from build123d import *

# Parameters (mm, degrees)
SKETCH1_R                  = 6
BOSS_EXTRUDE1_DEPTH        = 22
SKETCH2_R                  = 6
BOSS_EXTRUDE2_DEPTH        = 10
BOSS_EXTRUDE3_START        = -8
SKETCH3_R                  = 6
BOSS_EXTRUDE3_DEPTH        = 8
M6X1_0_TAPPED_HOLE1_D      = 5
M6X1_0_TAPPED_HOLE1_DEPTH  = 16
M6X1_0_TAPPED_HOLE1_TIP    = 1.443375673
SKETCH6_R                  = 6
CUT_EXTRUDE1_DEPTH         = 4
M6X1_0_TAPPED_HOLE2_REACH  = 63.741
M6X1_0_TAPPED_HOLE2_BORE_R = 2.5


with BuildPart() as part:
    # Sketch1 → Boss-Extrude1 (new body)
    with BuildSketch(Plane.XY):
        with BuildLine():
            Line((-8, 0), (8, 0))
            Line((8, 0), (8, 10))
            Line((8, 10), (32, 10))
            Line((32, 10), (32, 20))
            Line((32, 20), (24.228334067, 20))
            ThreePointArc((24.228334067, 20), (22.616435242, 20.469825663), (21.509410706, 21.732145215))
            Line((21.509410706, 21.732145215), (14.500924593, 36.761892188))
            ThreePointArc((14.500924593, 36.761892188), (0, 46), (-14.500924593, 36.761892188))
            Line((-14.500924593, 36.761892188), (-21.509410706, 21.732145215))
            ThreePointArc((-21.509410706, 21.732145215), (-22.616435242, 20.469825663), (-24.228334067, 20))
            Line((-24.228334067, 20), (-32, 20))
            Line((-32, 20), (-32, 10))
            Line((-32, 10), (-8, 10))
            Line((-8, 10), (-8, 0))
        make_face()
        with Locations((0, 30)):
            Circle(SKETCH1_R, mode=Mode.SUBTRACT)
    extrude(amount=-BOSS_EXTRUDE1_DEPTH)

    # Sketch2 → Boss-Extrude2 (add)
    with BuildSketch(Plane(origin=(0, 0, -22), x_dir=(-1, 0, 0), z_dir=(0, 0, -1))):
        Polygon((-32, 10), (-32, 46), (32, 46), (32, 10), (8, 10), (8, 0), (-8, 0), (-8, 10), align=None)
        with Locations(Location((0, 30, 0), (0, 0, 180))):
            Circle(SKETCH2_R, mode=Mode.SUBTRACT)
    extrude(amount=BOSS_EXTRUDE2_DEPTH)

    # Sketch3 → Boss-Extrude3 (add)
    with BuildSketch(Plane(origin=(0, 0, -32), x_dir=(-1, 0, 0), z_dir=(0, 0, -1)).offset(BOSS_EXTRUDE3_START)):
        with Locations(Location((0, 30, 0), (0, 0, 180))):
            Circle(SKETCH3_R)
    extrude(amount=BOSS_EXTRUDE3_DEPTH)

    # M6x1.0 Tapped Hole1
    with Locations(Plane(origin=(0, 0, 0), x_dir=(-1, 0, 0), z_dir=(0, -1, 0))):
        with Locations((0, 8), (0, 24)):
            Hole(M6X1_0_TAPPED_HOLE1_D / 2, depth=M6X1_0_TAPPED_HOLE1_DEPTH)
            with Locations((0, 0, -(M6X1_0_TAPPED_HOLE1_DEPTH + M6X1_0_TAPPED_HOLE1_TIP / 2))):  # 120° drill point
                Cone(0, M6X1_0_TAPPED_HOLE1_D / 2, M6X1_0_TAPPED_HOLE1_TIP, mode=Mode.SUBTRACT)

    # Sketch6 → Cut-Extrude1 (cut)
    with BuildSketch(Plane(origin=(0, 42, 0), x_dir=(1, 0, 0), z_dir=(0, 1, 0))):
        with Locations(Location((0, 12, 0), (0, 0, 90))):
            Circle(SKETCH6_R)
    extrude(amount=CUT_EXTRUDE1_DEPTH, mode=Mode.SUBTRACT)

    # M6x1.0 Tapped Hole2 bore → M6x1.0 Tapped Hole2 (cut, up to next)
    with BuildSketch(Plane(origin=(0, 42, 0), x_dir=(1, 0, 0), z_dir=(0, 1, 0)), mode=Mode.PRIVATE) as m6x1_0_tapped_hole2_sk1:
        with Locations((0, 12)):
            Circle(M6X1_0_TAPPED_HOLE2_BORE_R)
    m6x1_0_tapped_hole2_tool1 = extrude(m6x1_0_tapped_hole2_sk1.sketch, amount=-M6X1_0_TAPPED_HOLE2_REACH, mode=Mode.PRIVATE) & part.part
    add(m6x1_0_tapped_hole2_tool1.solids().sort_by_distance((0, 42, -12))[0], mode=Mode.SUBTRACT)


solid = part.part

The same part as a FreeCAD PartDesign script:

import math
import FreeCAD as App
import Part
import Sketcher
from FreeCAD import Vector
Q = App.Units.Quantity

doc = App.newDocument("Part")
params = doc.addObject("Spreadsheet::Sheet", "Params")
for row, (alias, value) in enumerate([
    ("sketch1_diameter", "12 mm"),
    ("sketch1_radius", "3 mm"),
    ("sketch1_radius2", "16 mm"),
    ("sketch1_width", "16 mm"),
    ("sketch1_width2", "24 mm"),
    ("pad1_length", "22 mm"),
    ("sketch2_diameter", "12 mm"),
    ("sketch2_width", "24 mm"),
    ("sketch2_width2", "16 mm"),
    ("sketch2_height", "36 mm"),
    ("sketch2_height2", "10 mm"),
    ("pad2_length", "10 mm"),
    ("sketch3_diameter", "12 mm"),
    ("pad3_length", "8 mm"),
    ("sketch4_diameter", "5 mm"),
    ("hole_diameter", "5 mm"),
    ("hole_depth", "16 mm"),
    ("sketch5_diameter", "12 mm"),
    ("pocket1_length", "4 mm"),
    ("sketch6_diameter", "5 mm"),
], start=1):
    params.set(f"A{row}", alias)
    params.set(f"B{row}", "=" + value)
    params.setAlias(f"B{row}", alias)

body = doc.addObject("PartDesign::Body", "Body")

sketch1 = body.newObject("Sketcher::SketchObject", "Sketch")
sketch1.AttachmentSupport = (doc.getObject("XY_Plane"), [""])
sketch1.MapMode = "FlatFace"
sketch1.addGeometry([
    Part.LineSegment(Vector(-8, 0, 0), Vector(8, 0, 0)),
    Part.LineSegment(Vector(8, 0, 0), Vector(8, 10, 0)),
    Part.LineSegment(Vector(8, 10, 0), Vector(32, 10, 0)),
    Part.LineSegment(Vector(32, 10, 0), Vector(32, 20, 0)),
    Part.LineSegment(Vector(32, 20, 0), Vector(24.2, 20, 0)),
    Part.ArcOfCircle(Part.Circle(Vector(24.2, 23, 0), Vector(0, 0, 1), 3), math.radians(-155), math.radians(-90)),
    Part.LineSegment(Vector(21.5, 21.7, 0), Vector(14.5, 36.8, 0)),
    Part.ArcOfCircle(Part.Circle(Vector(0, 30, 0), Vector(0, 0, 1), 16), math.radians(25), math.radians(155)),
    Part.LineSegment(Vector(-14.5, 36.8, 0), Vector(-21.5, 21.7, 0)),
    Part.ArcOfCircle(Part.Circle(Vector(-24.2, 23, 0), Vector(0, 0, 1), 3), math.radians(-90), math.radians(-25)),
    Part.LineSegment(Vector(-24.2, 20, 0), Vector(-32, 20, 0)),
    Part.LineSegment(Vector(-32, 20, 0), Vector(-32, 10, 0)),
    Part.LineSegment(Vector(-32, 10, 0), Vector(-8, 10, 0)),
    Part.LineSegment(Vector(-8, 10, 0), Vector(-8, 0, 0)),
    Part.Circle(Vector(0, 30, 0), Vector(0, 0, 1), 6),
], False)
sketch1.addConstraint([
    Sketcher.Constraint("Coincident", 0, 2, 1, 1),
    Sketcher.Constraint("Coincident", 1, 2, 2, 1),
    Sketcher.Constraint("Coincident", 2, 2, 3, 1),
    Sketcher.Constraint("Coincident", 3, 2, 4, 1),
    Sketcher.Constraint("Tangent", 4, 2, 5, 2),
    Sketcher.Constraint("Tangent", 5, 1, 6, 1),
    Sketcher.Constraint("Tangent", 6, 2, 7, 1),
    Sketcher.Constraint("Tangent", 7, 2, 8, 1),
    Sketcher.Constraint("Tangent", 8, 2, 9, 2),
    Sketcher.Constraint("Tangent", 9, 1, 10, 1),
    Sketcher.Constraint("Coincident", 10, 2, 11, 1),
    Sketcher.Constraint("Coincident", 11, 2, 12, 1),
    Sketcher.Constraint("Coincident", 12, 2, 13, 1),
    Sketcher.Constraint("Coincident", 13, 2, 0, 1),
    Sketcher.Constraint("Horizontal", 0),
    Sketcher.Constraint("Vertical", 1),
    Sketcher.Constraint("Horizontal", 2),
    Sketcher.Constraint("Vertical", 3),
    Sketcher.Constraint("Horizontal", 4),
    Sketcher.Constraint("Horizontal", 10),
    Sketcher.Constraint("Vertical", 11),
    Sketcher.Constraint("Horizontal", 12),
    Sketcher.Constraint("Vertical", 13),
    Sketcher.Constraint("Coincident", 14, 3, 7, 3),
    Sketcher.Constraint("Equal", 5, 9),
    Sketcher.Constraint("Symmetric", 0, 2, 13, 2, -1, 1),
    Sketcher.Constraint("Symmetric", 5, 3, 9, 3, -2),
    Sketcher.Constraint("Symmetric", 2, 2, 11, 2, -2),
    Sketcher.Constraint("PointOnObject", 7, 3, -2),
    Sketcher.Constraint("Equal", 1, 3),
    Sketcher.Constraint("Diameter", 14, 12.0),
    Sketcher.Constraint("Radius", 5, 3.0),
    Sketcher.Constraint("Radius", 7, 16.0),
    Sketcher.Constraint("DistanceX", 0, 1, 0, 2, 16.0),
    Sketcher.Constraint("DistanceX", 2, 1, 2, 2, 24.0),
    Sketcher.Constraint("DistanceY", 1, 1, 1, 2, 10.0),
    Sketcher.Constraint("Angle", 6, Q("115 deg")),
    Sketcher.Constraint("DistanceY", -1, 1, 7, 3, 30.0),
])
sketch1.setExpression("Constraints[30]", "Params.sketch1_diameter")
sketch1.setExpression("Constraints[31]", "Params.sketch1_radius")
sketch1.setExpression("Constraints[32]", "Params.sketch1_radius2")
sketch1.setExpression("Constraints[33]", "Params.sketch1_width")
sketch1.setExpression("Constraints[34]", "Params.sketch1_width2")
pad1 = body.newObject("PartDesign::Pad", "Pad")
pad1.Profile = sketch1
pad1.setExpression("Length", "Params.pad1_length")
pad1.Reversed = True

sketch2 = body.newObject("Sketcher::SketchObject", "Sketch001")
sketch2.AttachmentSupport = (doc.getObject("XY_Plane"), [""])
sketch2.MapMode = "FlatFace"
sketch2.AttachmentOffset = App.Placement(Vector(0, 0, -22), App.Rotation())
sketch2.addGeometry([
    Part.LineSegment(Vector(32, 46, 0), Vector(32, 10, 0)),
    Part.LineSegment(Vector(32, 10, 0), Vector(8, 10, 0)),
    Part.LineSegment(Vector(8, 10, 0), Vector(8, 0, 0)),
    Part.LineSegment(Vector(8, 0, 0), Vector(-8, 0, 0)),
    Part.LineSegment(Vector(-8, 0, 0), Vector(-8, 10, 0)),
    Part.LineSegment(Vector(-8, 10, 0), Vector(-32, 10, 0)),
    Part.LineSegment(Vector(-32, 10, 0), Vector(-32, 46, 0)),
    Part.LineSegment(Vector(-32, 46, 0), Vector(32, 46, 0)),
    Part.Circle(Vector(0, 30, 0), Vector(0, 0, 1), 6),
], False)
sketch2.addConstraint([
    Sketcher.Constraint("Coincident", 0, 2, 1, 1),
    Sketcher.Constraint("Coincident", 1, 2, 2, 1),
    Sketcher.Constraint("Coincident", 2, 2, 3, 1),
    Sketcher.Constraint("Coincident", 3, 2, 4, 1),
    Sketcher.Constraint("Coincident", 4, 2, 5, 1),
    Sketcher.Constraint("Coincident", 5, 2, 6, 1),
    Sketcher.Constraint("Coincident", 6, 2, 7, 1),
    Sketcher.Constraint("Coincident", 7, 2, 0, 1),
    Sketcher.Constraint("Vertical", 0),
    Sketcher.Constraint("Horizontal", 1),
    Sketcher.Constraint("Vertical", 2),
    Sketcher.Constraint("Horizontal", 3),
    Sketcher.Constraint("Vertical", 4),
    Sketcher.Constraint("Horizontal", 5),
    Sketcher.Constraint("Vertical", 6),
    Sketcher.Constraint("Horizontal", 7),
    Sketcher.Constraint("Symmetric", 2, 2, 3, 2, -1, 1),
    Sketcher.Constraint("Symmetric", 0, 2, 5, 2, -2),
    Sketcher.Constraint("PointOnObject", 8, 3, -2),
    Sketcher.Constraint("Diameter", 8, 12.0),
    Sketcher.Constraint("DistanceX", 1, 2, 1, 1, 24.0),
    Sketcher.Constraint("DistanceX", 3, 2, 3, 1, 16.0),
    Sketcher.Constraint("DistanceY", 0, 2, 0, 1, 36.0),
    Sketcher.Constraint("DistanceY", 2, 2, 2, 1, 10.0),
    Sketcher.Constraint("DistanceY", -1, 1, 8, 3, 30.0),
])
sketch2.setExpression("Constraints[19]", "Params.sketch2_diameter")
sketch2.setExpression("Constraints[20]", "Params.sketch2_width")
sketch2.setExpression("Constraints[21]", "Params.sketch2_width2")
sketch2.setExpression("Constraints[22]", "Params.sketch2_height")
sketch2.setExpression("Constraints[23]", "Params.sketch2_height2")
pad2 = body.newObject("PartDesign::Pad", "Pad001")
pad2.Profile = sketch2
pad2.setExpression("Length", "Params.pad2_length")
pad2.Reversed = True

sketch3 = body.newObject("Sketcher::SketchObject", "Sketch002")
sketch3.AttachmentSupport = (doc.getObject("XY_Plane"), [""])
sketch3.MapMode = "FlatFace"
sketch3.AttachmentOffset = App.Placement(Vector(0, 0, -24), App.Rotation())
sketch3.addGeometry(Part.Circle(Vector(0, 30, 0), Vector(0, 0, 1), 6), False)
sketch3.addConstraint([
    Sketcher.Constraint("PointOnObject", 0, 3, -2),
    Sketcher.Constraint("Diameter", 0, 12.0),
    Sketcher.Constraint("DistanceY", -1, 1, 0, 3, 30.0),
])
sketch3.setExpression("Constraints[1]", "Params.sketch3_diameter")
pad3 = body.newObject("PartDesign::Pad", "Pad002")
pad3.Profile = sketch3
pad3.setExpression("Length", "Params.pad3_length")
pad3.Reversed = True

sketch4 = body.newObject("Sketcher::SketchObject", "Sketch003")
sketch4.AttachmentSupport = (doc.getObject("XZ_Plane"), [""])
sketch4.MapMode = "FlatFace"
sketch4.addGeometry([
    Part.Circle(Vector(0, -8, 0), Vector(0, 0, 1), 2.5),
    Part.Circle(Vector(0, -24, 0), Vector(0, 0, 1), 2.5),
], False)
sketch4.addConstraint([
    Sketcher.Constraint("Equal", 0, 1),
    Sketcher.Constraint("PointOnObject", 0, 3, -2),
    Sketcher.Constraint("PointOnObject", 1, 3, -2),
    Sketcher.Constraint("Diameter", 0, 5.0),
    Sketcher.Constraint("DistanceY", 0, 3, -1, 1, 8.0),
    Sketcher.Constraint("DistanceY", 1, 3, -1, 1, 24.0),
])
sketch4.setExpression("Constraints[3]", "Params.sketch4_diameter")
doc.recompute()
hole = body.newObject("PartDesign::Hole", "Hole")
hole.Profile = sketch4
hole.ThreadType = "None"
hole.setExpression("Diameter", "Params.hole_diameter")
hole.DepthType = "Dimension"
hole.setExpression("Depth", "Params.hole_depth")
hole.DrillPoint = "Angled"
hole.DrillPointAngle = 120

sketch5 = body.newObject("Sketcher::SketchObject", "Sketch004")
sketch5.AttachmentSupport = (doc.getObject("XZ_Plane"), [""])
sketch5.MapMode = "FlatFace"
sketch5.AttachmentOffset = App.Placement(Vector(0, 0, -42), App.Rotation())
sketch5.addGeometry(Part.Circle(Vector(0, -12, 0), Vector(0, 0, 1), 6), False)
sketch5.addConstraint([
    Sketcher.Constraint("PointOnObject", 0, 3, -2),
    Sketcher.Constraint("Diameter", 0, 12.0),
    Sketcher.Constraint("DistanceY", 0, 3, -1, 1, 12.0),
])
sketch5.setExpression("Constraints[1]", "Params.sketch5_diameter")
pocket1 = body.newObject("PartDesign::Pocket", "Pocket")
pocket1.Profile = sketch5
pocket1.setExpression("Length", "Params.pocket1_length")

sketch6 = body.newObject("Sketcher::SketchObject", "Sketch005")
sketch6.AttachmentSupport = (doc.getObject("XZ_Plane"), [""])
sketch6.MapMode = "FlatFace"
sketch6.AttachmentOffset = App.Placement(Vector(0, 0, -42), App.Rotation())
sketch6.addGeometry(Part.Circle(Vector(0, -12, 0), Vector(0, 0, 1), 2.5), False)
sketch6.addConstraint([
    Sketcher.Constraint("PointOnObject", 0, 3, -2),
    Sketcher.Constraint("Diameter", 0, 5.0),
    Sketcher.Constraint("DistanceY", 0, 3, -1, 1, 12.0),
])
sketch6.setExpression("Constraints[1]", "Params.sketch6_diameter")
pocket2 = body.newObject("PartDesign::Pocket", "Pocket001")
pocket2.Profile = sketch6
pocket2.Type = "UpToFirst"
pocket2.Reversed = True

doc.recompute()
